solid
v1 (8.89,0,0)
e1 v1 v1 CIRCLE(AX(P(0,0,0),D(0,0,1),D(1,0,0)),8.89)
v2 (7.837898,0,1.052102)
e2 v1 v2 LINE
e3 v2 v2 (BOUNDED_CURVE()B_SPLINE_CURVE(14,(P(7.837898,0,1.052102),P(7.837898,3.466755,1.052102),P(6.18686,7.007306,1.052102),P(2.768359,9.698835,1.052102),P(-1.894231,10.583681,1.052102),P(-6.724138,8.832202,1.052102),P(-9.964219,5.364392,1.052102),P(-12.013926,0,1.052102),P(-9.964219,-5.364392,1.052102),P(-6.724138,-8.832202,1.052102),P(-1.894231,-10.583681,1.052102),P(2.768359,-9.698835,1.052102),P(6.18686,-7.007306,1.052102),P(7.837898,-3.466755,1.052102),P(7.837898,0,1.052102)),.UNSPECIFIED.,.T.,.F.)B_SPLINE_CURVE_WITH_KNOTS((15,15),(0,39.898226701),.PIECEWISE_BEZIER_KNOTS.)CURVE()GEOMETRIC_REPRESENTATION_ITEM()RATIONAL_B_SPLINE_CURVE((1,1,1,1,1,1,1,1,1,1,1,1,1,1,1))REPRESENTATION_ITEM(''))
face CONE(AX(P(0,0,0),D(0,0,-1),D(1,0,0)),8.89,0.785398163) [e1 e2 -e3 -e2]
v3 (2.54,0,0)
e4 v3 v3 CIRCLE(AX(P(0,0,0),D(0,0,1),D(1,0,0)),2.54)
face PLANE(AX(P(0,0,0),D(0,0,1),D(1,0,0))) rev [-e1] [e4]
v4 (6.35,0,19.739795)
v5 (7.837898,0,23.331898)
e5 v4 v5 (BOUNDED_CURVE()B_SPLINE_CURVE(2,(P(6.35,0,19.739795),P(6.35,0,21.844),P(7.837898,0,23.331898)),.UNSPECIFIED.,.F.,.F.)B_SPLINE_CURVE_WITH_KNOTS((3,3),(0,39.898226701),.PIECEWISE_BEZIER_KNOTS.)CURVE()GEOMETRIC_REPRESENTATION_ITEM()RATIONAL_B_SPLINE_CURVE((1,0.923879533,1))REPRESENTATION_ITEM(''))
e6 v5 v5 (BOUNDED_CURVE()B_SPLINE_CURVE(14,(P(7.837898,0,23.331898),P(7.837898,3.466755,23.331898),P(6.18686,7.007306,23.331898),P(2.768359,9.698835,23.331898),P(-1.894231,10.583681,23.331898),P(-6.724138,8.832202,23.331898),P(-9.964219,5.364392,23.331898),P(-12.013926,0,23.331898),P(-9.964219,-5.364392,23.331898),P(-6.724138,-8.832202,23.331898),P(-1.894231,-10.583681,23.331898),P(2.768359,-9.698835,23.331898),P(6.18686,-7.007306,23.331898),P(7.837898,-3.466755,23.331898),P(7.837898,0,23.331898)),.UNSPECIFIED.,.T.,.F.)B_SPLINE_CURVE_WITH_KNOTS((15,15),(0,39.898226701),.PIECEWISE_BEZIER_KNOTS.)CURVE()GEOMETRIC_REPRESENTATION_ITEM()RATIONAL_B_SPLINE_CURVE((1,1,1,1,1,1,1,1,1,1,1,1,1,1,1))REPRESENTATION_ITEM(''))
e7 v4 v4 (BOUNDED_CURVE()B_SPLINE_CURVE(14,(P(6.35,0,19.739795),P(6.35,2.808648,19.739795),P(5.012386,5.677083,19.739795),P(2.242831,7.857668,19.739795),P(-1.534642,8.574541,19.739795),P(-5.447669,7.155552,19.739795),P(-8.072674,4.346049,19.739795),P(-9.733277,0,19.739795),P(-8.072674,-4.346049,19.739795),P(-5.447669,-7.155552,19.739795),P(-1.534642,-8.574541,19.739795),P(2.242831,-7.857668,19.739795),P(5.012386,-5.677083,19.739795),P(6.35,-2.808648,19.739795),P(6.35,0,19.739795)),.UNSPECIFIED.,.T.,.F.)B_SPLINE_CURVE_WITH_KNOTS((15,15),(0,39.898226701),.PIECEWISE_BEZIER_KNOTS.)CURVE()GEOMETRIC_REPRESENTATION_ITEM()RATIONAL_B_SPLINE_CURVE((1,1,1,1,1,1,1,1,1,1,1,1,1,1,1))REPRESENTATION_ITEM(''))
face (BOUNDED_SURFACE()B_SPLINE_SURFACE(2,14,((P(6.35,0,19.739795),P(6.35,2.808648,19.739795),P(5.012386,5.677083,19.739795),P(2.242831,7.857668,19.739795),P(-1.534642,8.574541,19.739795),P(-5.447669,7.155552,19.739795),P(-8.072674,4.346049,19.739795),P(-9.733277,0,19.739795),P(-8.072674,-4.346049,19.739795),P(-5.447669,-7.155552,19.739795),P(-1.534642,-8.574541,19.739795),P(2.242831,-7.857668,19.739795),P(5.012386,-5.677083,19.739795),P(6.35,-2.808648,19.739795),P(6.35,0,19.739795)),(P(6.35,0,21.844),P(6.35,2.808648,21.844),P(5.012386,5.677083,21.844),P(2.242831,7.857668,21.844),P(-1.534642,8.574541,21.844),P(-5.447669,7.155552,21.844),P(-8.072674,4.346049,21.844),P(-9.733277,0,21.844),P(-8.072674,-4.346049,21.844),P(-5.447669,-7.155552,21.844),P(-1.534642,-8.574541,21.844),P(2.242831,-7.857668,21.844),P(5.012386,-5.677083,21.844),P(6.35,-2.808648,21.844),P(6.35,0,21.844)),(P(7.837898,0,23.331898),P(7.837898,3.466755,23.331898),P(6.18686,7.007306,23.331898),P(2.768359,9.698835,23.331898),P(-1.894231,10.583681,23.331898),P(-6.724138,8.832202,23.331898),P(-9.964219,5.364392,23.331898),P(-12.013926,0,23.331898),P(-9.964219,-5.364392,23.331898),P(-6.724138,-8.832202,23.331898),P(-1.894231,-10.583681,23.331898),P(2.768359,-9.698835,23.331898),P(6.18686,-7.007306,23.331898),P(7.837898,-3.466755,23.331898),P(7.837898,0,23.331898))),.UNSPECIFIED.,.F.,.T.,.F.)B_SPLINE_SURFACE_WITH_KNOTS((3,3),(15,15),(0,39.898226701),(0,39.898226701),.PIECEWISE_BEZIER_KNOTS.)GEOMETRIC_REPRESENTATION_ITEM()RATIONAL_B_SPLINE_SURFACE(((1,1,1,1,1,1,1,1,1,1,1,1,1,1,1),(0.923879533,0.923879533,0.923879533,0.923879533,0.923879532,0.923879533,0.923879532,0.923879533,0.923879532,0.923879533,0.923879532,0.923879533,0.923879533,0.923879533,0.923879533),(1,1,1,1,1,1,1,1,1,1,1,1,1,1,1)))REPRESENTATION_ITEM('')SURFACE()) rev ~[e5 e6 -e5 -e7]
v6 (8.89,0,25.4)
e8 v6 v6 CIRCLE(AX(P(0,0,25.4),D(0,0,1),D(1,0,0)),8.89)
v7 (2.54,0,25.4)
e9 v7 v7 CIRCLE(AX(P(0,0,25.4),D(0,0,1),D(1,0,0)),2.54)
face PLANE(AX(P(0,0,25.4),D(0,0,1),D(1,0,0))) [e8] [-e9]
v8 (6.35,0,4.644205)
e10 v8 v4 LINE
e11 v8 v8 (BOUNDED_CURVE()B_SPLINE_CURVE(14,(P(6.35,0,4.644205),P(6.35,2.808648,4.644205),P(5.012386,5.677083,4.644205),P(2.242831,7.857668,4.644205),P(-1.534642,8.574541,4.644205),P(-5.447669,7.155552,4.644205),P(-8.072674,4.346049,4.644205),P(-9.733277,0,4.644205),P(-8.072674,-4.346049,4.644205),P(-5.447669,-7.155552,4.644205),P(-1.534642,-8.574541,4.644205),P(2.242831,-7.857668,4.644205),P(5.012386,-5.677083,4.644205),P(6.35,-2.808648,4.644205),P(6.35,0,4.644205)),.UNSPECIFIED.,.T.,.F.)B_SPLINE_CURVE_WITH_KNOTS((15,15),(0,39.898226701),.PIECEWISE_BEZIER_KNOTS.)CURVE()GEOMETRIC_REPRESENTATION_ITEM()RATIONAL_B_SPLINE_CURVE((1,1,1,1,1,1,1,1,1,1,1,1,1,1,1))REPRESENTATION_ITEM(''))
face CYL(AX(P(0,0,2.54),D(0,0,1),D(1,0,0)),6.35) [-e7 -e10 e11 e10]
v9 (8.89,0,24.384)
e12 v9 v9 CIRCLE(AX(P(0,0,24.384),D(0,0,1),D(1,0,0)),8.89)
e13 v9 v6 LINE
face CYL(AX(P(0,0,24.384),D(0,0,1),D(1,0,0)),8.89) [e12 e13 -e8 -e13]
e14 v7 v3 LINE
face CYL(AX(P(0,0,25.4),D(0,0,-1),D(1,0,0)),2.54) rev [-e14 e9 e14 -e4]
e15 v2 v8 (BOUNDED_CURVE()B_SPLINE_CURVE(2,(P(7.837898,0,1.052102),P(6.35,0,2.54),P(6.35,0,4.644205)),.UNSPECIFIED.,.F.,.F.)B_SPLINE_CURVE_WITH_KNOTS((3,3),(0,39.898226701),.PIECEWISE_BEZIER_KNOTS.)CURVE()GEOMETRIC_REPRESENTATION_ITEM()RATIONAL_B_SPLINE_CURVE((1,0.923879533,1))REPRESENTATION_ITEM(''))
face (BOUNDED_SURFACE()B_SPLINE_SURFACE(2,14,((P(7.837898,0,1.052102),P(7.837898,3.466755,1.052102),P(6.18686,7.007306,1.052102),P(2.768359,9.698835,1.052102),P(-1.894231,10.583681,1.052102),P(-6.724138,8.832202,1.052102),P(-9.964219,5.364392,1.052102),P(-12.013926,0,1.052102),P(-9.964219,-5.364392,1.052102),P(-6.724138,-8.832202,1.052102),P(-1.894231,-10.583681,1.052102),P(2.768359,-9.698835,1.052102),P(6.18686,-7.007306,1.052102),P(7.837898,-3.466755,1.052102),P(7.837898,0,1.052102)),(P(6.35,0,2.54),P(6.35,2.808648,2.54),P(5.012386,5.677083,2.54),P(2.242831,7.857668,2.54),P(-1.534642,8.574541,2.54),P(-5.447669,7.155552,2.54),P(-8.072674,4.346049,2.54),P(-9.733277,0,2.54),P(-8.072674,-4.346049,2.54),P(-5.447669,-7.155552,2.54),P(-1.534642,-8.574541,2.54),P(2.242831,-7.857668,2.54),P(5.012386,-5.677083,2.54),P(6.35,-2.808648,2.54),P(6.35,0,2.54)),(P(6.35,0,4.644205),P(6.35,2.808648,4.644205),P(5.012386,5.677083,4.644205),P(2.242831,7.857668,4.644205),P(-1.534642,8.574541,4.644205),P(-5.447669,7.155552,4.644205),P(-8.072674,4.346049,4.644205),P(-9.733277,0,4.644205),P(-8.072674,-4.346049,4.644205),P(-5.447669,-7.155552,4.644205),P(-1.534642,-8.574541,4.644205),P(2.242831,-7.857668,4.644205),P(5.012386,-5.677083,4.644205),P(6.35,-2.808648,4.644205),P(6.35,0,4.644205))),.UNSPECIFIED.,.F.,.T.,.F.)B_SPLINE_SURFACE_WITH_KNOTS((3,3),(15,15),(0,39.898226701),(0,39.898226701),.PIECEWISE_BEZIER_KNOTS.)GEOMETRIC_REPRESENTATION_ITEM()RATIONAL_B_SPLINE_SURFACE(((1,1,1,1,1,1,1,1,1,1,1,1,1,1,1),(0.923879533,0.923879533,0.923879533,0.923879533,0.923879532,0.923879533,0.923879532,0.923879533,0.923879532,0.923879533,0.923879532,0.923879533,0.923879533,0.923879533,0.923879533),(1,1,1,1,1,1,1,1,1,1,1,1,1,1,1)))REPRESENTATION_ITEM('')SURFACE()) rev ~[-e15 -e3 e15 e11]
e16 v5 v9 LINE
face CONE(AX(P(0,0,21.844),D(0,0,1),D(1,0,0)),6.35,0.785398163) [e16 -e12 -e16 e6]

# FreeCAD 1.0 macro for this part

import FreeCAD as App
import Part
import Sketcher
Q = App.Units.Quantity


def edges_at(feature, points):
    """Names of the edges that pass closest to the given points."""
    edges = feature.Shape.Edges
    near = lambda p: min(range(len(edges)), key=lambda i: edges[i].distToShape(Part.Vertex(*p))[0])
    return sorted({f"Edge{near(p) + 1}" for p in points})


def add_polygon(sketch, points):
    """Adds a closed chain of lines whose ends are joined by coincident constraints."""
    first, n = sketch.GeometryCount, len(points)
    for a, b in zip(points, points[1:] + points[:1]):
        sketch.addGeometry(Part.LineSegment(App.Vector(*a, 0), App.Vector(*b, 0)), False)
    for i in range(n):
        sketch.addConstraint(Sketcher.Constraint("Coincident", first + i, 2, first + (i + 1) % n, 1))

doc = App.newDocument("Part")
body = doc.addObject("PartDesign::Body", "Body")

sketch1 = body.newObject("Sketcher::SketchObject", "Sketch")
sketch1.AttachmentSupport = (doc.getObject("XZ_Plane"), [""])
sketch1.MapMode = "FlatFace"
add_polygon(sketch1, [(2.5, 25.4), (2.5, 0), (8.9, 0), (6.3, 2.5), (6.3, 21.8), (8.9, 24.4), (8.9, 25.4)])
sketch1.addConstraint(Sketcher.Constraint("Vertical", 0))
sketch1.addConstraint(Sketcher.Constraint("Horizontal", 1))
sketch1.addConstraint(Sketcher.Constraint("Vertical", 3))
sketch1.addConstraint(Sketcher.Constraint("Vertical", 5))
sketch1.addConstraint(Sketcher.Constraint("Horizontal", 6))
sketch1.addConstraint(Sketcher.Constraint("PointOnObject", 0, 2, -1))
sketch1.addConstraint(Sketcher.Constraint("Perpendicular", 2, 4))
sketch1.addConstraint(Sketcher.Constraint("Vertical", 1, 2, 4, 2))
sketch1.addConstraint(Sketcher.Constraint("Equal", 2, 4))
sketch1.addConstraint(Sketcher.Constraint("DistanceY", 0, 2, 0, 1, Q("1 in")))
sketch1.addConstraint(Sketcher.Constraint("DistanceX", 1, 1, 1, 2, Q("0.25 in")))
sketch1.addConstraint(Sketcher.Constraint("DistanceY", 3, 1, 3, 2, Q("0.76 in")))
sketch1.addConstraint(Sketcher.Constraint("DistanceY", 5, 1, 5, 2, Q("0.04 in")))
sketch1.addConstraint(Sketcher.Constraint("DistanceX", -1, 1, 0, 2, Q("0.1 in")))
revolution = body.newObject("PartDesign::Revolution", "Revolution")
revolution.Profile = sketch1
revolution.ReferenceAxis = (sketch1, ["V_Axis"])
revolution.Angle = 360
doc.recompute()

fillet = body.newObject("PartDesign::Fillet", "Fillet")
fillet.Base = (revolution, edges_at(revolution, [(-6.35, 0, 21.844), (-6.35, 0, 2.54)]))
fillet.Radius = Q("0.2 in")

doc.recompute()
